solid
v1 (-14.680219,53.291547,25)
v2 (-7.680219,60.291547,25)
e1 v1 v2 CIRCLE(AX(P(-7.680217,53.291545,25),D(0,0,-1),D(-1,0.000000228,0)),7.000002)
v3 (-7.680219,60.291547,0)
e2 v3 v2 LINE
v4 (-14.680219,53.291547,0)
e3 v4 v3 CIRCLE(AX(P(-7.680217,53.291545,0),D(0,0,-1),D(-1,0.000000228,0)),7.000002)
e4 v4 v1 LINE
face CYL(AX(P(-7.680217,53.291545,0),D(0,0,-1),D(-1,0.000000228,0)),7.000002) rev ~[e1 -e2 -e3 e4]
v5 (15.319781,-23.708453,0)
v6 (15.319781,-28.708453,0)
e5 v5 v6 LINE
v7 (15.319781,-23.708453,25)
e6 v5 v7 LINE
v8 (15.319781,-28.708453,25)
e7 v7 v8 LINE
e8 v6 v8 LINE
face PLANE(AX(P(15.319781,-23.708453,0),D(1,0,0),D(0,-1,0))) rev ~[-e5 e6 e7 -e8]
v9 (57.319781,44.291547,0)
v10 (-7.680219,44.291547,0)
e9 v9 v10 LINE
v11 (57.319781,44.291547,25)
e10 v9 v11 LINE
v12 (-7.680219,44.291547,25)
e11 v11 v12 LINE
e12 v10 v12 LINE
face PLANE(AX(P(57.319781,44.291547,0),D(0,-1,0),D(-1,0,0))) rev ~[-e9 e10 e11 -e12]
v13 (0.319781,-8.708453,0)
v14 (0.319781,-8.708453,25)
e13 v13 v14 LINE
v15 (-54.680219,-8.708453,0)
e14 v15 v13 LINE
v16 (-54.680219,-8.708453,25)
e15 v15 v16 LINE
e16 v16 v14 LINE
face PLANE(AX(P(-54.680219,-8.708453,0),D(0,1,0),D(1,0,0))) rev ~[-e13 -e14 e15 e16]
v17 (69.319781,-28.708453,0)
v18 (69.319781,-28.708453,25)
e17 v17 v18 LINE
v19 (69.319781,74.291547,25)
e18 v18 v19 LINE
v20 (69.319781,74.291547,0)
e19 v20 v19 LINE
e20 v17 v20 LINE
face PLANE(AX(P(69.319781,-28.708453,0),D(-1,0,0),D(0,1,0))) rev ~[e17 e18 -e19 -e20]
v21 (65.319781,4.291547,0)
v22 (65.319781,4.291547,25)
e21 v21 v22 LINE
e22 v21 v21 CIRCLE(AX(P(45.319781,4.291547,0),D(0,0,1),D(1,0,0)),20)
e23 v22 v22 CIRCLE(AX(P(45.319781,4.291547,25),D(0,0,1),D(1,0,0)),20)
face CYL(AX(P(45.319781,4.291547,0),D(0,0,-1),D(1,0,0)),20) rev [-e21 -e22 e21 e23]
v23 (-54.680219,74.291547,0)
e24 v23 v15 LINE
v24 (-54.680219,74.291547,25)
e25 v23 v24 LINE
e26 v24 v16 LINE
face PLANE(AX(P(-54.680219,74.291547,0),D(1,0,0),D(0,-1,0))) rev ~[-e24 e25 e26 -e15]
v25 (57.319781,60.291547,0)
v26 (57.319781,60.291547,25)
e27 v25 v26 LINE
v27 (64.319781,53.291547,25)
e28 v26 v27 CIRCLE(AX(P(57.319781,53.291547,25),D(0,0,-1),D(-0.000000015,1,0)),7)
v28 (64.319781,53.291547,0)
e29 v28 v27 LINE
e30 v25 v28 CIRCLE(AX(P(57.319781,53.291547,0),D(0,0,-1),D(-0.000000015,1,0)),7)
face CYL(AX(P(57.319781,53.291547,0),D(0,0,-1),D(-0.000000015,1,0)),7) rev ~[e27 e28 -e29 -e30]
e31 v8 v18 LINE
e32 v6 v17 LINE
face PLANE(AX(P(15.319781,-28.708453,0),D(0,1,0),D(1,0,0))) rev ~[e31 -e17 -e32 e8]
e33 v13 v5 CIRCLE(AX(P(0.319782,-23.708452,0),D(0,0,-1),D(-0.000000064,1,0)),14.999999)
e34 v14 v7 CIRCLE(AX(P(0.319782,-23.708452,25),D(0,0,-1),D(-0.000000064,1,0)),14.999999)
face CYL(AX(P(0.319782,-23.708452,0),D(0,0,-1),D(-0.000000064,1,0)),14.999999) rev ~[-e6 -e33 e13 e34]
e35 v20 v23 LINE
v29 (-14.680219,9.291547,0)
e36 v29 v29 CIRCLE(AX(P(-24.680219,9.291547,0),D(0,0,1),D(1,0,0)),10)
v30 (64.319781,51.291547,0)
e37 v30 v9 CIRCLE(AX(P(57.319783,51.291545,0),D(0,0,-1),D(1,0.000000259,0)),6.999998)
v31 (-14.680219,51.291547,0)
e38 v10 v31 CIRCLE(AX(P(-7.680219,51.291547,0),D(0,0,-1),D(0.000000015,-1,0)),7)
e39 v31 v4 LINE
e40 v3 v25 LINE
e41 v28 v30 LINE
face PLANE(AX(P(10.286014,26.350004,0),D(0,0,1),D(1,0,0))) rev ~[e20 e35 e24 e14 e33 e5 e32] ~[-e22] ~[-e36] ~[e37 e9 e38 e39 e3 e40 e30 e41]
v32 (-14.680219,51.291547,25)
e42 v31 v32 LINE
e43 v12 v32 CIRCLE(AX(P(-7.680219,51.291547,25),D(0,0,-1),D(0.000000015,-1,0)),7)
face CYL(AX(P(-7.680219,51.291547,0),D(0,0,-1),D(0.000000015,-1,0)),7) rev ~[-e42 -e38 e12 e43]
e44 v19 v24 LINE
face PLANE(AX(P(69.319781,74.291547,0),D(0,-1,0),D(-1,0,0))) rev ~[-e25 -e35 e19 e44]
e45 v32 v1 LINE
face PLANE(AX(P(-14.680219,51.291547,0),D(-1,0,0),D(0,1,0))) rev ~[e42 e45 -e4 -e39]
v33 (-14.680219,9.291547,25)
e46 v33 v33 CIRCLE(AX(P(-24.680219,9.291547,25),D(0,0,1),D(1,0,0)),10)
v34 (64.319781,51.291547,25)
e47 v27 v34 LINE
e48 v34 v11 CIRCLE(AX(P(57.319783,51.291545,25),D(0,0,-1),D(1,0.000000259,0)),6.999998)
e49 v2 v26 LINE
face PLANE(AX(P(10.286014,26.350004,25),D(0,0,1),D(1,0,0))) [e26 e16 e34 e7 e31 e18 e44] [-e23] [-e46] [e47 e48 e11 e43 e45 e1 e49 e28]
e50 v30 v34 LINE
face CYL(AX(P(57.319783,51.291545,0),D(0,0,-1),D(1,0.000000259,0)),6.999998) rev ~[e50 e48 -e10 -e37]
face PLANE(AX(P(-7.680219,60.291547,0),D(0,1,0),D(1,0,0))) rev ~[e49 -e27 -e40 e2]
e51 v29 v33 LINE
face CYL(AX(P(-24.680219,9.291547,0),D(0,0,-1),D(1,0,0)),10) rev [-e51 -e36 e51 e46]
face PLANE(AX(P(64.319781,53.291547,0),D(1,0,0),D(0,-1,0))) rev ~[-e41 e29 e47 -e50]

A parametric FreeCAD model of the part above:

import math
import FreeCAD as App
import Part
import Sketcher
Q = App.Units.Quantity

doc = App.newDocument("Part")
body = doc.addObject("PartDesign::Body", "Body")

# Sketch on XY plane
sketch1 = doc.addObject("Sketcher::SketchObject", "Sketch")
body.addObject(sketch1)
sketch1.AttachmentSupport = (doc.XY_Plane, [""])
sketch1.MapMode = "FlatFace"
sketch1.addGeometry([
    Part.LineSegment(App.Vector(69.3, 74.3, 0), App.Vector(-54.7, 74.3, 0)),  # 0
    Part.LineSegment(App.Vector(-54.7, 74.3, 0), App.Vector(-54.7, -8.7, 0)),  # 1
    Part.LineSegment(App.Vector(-54.7, -8.7, 0), App.Vector(0.3, -8.7, 0)),  # 2
    Part.ArcOfCircle(Part.Circle(App.Vector(0.3, -23.7, 0), App.Vector(0, 0, 1), 15), math.radians(0), math.radians(90)),  # 3
    Part.LineSegment(App.Vector(15.3, -23.7, 0), App.Vector(15.3, -28.7, 0)),  # 4
    Part.LineSegment(App.Vector(15.3, -28.7, 0), App.Vector(69.3, -28.7, 0)),  # 5
    Part.LineSegment(App.Vector(69.3, -28.7, 0), App.Vector(69.3, 74.3, 0)),  # 6
    Part.Circle(App.Vector(-24.7, 9.3, 0), App.Vector(0, 0, 1), 10),  # 7
    Part.Circle(App.Vector(45.3, 4.3, 0), App.Vector(0, 0, 1), 20),  # 8
    Part.LineSegment(App.Vector(-14.7, 51.3, 0), App.Vector(-14.7, 53.3, 0)),  # 9
    Part.ArcOfCircle(Part.Circle(App.Vector(-7.7, 53.3, 0), App.Vector(0, 0, 1), 7), math.radians(90), math.radians(180)),  # 10
    Part.LineSegment(App.Vector(-7.7, 60.3, 0), App.Vector(57.3, 60.3, 0)),  # 11
    Part.ArcOfCircle(Part.Circle(App.Vector(57.3, 53.3, 0), App.Vector(0, 0, 1), 7), math.radians(0), math.radians(90)),  # 12
    Part.LineSegment(App.Vector(64.3, 53.3, 0), App.Vector(64.3, 51.3, 0)),  # 13
    Part.ArcOfCircle(Part.Circle(App.Vector(57.3, 51.3, 0), App.Vector(0, 0, 1), 7), math.radians(-90), math.radians(0)),  # 14
    Part.LineSegment(App.Vector(57.3, 44.3, 0), App.Vector(-7.7, 44.3, 0)),  # 15
    Part.ArcOfCircle(Part.Circle(App.Vector(-7.7, 51.3, 0), App.Vector(0, 0, 1), 7), math.radians(180), math.radians(270)),  # 16
], False)
sketch1.addConstraint([
    Sketcher.Constraint("Coincident", 0, 2, 1, 1),
    Sketcher.Constraint("Coincident", 1, 2, 2, 1),
    Sketcher.Constraint("Tangent", 2, 2, 3, 2),
    Sketcher.Constraint("Tangent", 3, 1, 4, 1),
    Sketcher.Constraint("Coincident", 4, 2, 5, 1),
    Sketcher.Constraint("Coincident", 5, 2, 6, 1),
    Sketcher.Constraint("Coincident", 6, 2, 0, 1),
    Sketcher.Constraint("Tangent", 9, 2, 10, 2),
    Sketcher.Constraint("Tangent", 10, 1, 11, 1),
    Sketcher.Constraint("Tangent", 11, 2, 12, 2),
    Sketcher.Constraint("Tangent", 12, 1, 13, 1),
    Sketcher.Constraint("Tangent", 13, 2, 14, 2),
    Sketcher.Constraint("Tangent", 14, 1, 15, 1),
    Sketcher.Constraint("Tangent", 15, 2, 16, 2),
    Sketcher.Constraint("Tangent", 16, 1, 9, 1),
    Sketcher.Constraint("Horizontal", 0),
    Sketcher.Constraint("Vertical", 1),
    Sketcher.Constraint("Horizontal", 2),
    Sketcher.Constraint("Vertical", 4),
    Sketcher.Constraint("Horizontal", 5),
    Sketcher.Constraint("Vertical", 6),
    Sketcher.Constraint("Vertical", 9),
    Sketcher.Constraint("Horizontal", 11),
    Sketcher.Constraint("Vertical", 13),
    Sketcher.Constraint("Horizontal", 15),
    Sketcher.Constraint("Equal", 10, 12),
    Sketcher.Constraint("Equal", 12, 14),
    Sketcher.Constraint("Equal", 14, 16),
    Sketcher.Constraint("Diameter", 7, Q("20 mm")),
    Sketcher.Constraint("Diameter", 8, Q("40 mm")),
    Sketcher.Constraint("Radius", 3, Q("14.999999 mm")),
    Sketcher.Constraint("Radius", 10, Q("7.000002 mm")),
    Sketcher.Constraint("DistanceX", 0, 2, 0, 1, Q("124 mm")),
    Sketcher.Constraint("DistanceX", 2, 1, 2, 2, Q("55 mm")),
    Sketcher.Constraint("DistanceX", 11, 1, 11, 2, Q("65 mm")),
    Sketcher.Constraint("DistanceY", 1, 2, 1, 1, Q("83 mm")),
    Sketcher.Constraint("DistanceY", 4, 2, 4, 1, Q("5 mm")),
    Sketcher.Constraint("DistanceY", 9, 1, 9, 2, Q("2 mm")),
    Sketcher.Constraint("DistanceX", 7, 3, 3, 3, Q("25.000001 mm")),
    Sketcher.Constraint("DistanceY", 3, 3, 7, 3, Q("32.999999 mm")),
    Sketcher.Constraint("DistanceX", 3, 3, 8, 3, Q("44.999999 mm")),
    Sketcher.Constraint("DistanceY", 3, 3, 8, 3, Q("27.999999 mm")),
    Sketcher.Constraint("DistanceX", 7, 3, 10, 3, Q("17.000002 mm")),
    Sketcher.Constraint("DistanceY", 7, 3, 10, 3, Q("43.999998 mm")),
    Sketcher.Constraint("DistanceX", -1, 1, 3, 3, Q("0.319782 mm")),
    Sketcher.Constraint("DistanceY", 3, 3, -1, 1, Q("23.708452 mm")),
])
pad1 = doc.addObject("PartDesign::Pad", "Pad")
body.addObject(pad1)
pad1.Profile = sketch1
pad1.Length = 25

# Sketch on XY plane
sketch2 = doc.addObject("Sketcher::SketchObject", "Sketch001")
body.addObject(sketch2)
sketch2.AttachmentSupport = (doc.XY_Plane, [""])
sketch2.MapMode = "FlatFace"
sketch2.addGeometry([
    Part.LineSegment(App.Vector(69.3, 74.3, 0), App.Vector(-54.7, 74.3, 0)),  # 0
    Part.LineSegment(App.Vector(-54.7, 74.3, 0), App.Vector(-54.7, -8.7, 0)),  # 1
    Part.LineSegment(App.Vector(-54.7, -8.7, 0), App.Vector(0.3, -8.7, 0)),  # 2
    Part.ArcOfCircle(Part.Circle(App.Vector(0.3, -23.7, 0), App.Vector(0, 0, 1), 15), math.radians(0), math.radians(90)),  # 3
    Part.LineSegment(App.Vector(15.3, -23.7, 0), App.Vector(15.3, -28.7, 0)),  # 4
    Part.LineSegment(App.Vector(15.3, -28.7, 0), App.Vector(69.3, -28.7, 0)),  # 5
    Part.LineSegment(App.Vector(69.3, -28.7, 0), App.Vector(69.3, 74.3, 0)),  # 6
    Part.Circle(App.Vector(-24.7, 9.3, 0), App.Vector(0, 0, 1), 10),  # 7
    Part.Circle(App.Vector(45.3, 4.3, 0), App.Vector(0, 0, 1), 20),  # 8
    Part.LineSegment(App.Vector(-14.7, 51.3, 0), App.Vector(-14.7, 53.3, 0)),  # 9
    Part.ArcOfCircle(Part.Circle(App.Vector(-7.7, 53.3, 0), App.Vector(0, 0, 1), 7), math.radians(90), math.radians(180)),  # 10
    Part.LineSegment(App.Vector(-7.7, 60.3, 0), App.Vector(57.3, 60.3, 0)),  # 11
    Part.ArcOfCircle(Part.Circle(App.Vector(57.3, 53.3, 0), App.Vector(0, 0, 1), 7), math.radians(0), math.radians(90)),  # 12
    Part.LineSegment(App.Vector(64.3, 53.3, 0), App.Vector(64.3, 51.3, 0)),  # 13
    Part.ArcOfCircle(Part.Circle(App.Vector(57.3, 51.3, 0), App.Vector(0, 0, 1), 7), math.radians(-90), math.radians(0)),  # 14
    Part.LineSegment(App.Vector(57.3, 44.3, 0), App.Vector(-7.7, 44.3, 0)),  # 15
    Part.ArcOfCircle(Part.Circle(App.Vector(-7.7, 51.3, 0), App.Vector(0, 0, 1), 7), math.radians(180), math.radians(270)),  # 16
], False)
sketch2.addConstraint([
    Sketcher.Constraint("Coincident", 0, 2, 1, 1),
    Sketcher.Constraint("Coincident", 1, 2, 2, 1),
    Sketcher.Constraint("Tangent", 2, 2, 3, 2),
    Sketcher.Constraint("Tangent", 3, 1, 4, 1),
    Sketcher.Constraint("Coincident", 4, 2, 5, 1),
    Sketcher.Constraint("Coincident", 5, 2, 6, 1),
    Sketcher.Constraint("Coincident", 6, 2, 0, 1),
    Sketcher.Constraint("Tangent", 9, 2, 10, 2),
    Sketcher.Constraint("Tangent", 10, 1, 11, 1),
    Sketcher.Constraint("Tangent", 11, 2, 12, 2),
    Sketcher.Constraint("Tangent", 12, 1, 13, 1),
    Sketcher.Constraint("Tangent", 13, 2, 14, 2),
    Sketcher.Constraint("Tangent", 14, 1, 15, 1),
    Sketcher.Constraint("Tangent", 15, 2, 16, 2),
    Sketcher.Constraint("Tangent", 16, 1, 9, 1),
    Sketcher.Constraint("Horizontal", 0),
    Sketcher.Constraint("Vertical", 1),
    Sketcher.Constraint("Horizontal", 2),
    Sketcher.Constraint("Vertical", 4),
    Sketcher.Constraint("Horizontal", 5),
    Sketcher.Constraint("Vertical", 6),
    Sketcher.Constraint("Vertical", 9),
    Sketcher.Constraint("Horizontal", 11),
    Sketcher.Constraint("Vertical", 13),
    Sketcher.Constraint("Horizontal", 15),
    Sketcher.Constraint("Equal", 10, 12),
    Sketcher.Constraint("Equal", 12, 14),
    Sketcher.Constraint("Equal", 14, 16),
    Sketcher.Constraint("Diameter", 7, Q("20 mm")),
    Sketcher.Constraint("Diameter", 8, Q("40 mm")),
    Sketcher.Constraint("Radius", 3, Q("14.999999 mm")),
    Sketcher.Constraint("Radius", 10, Q("7.000002 mm")),
    Sketcher.Constraint("DistanceX", 0, 2, 0, 1, Q("124 mm")),
    Sketcher.Constraint("DistanceX", 2, 1, 2, 2, Q("55 mm")),
    Sketcher.Constraint("DistanceX", 11, 1, 11, 2, Q("65 mm")),
    Sketcher.Constraint("DistanceY", 1, 2, 1, 1, Q("83 mm")),
    Sketcher.Constraint("DistanceY", 4, 2, 4, 1, Q("5 mm")),
    Sketcher.Constraint("DistanceY", 9, 1, 9, 2, Q("2 mm")),
    Sketcher.Constraint("DistanceX", 7, 3, 3, 3, Q("25.000001 mm")),
    Sketcher.Constraint("DistanceY", 3, 3, 7, 3, Q("32.999999 mm")),
    Sketcher.Constraint("DistanceX", 3, 3, 8, 3, Q("44.999999 mm")),
    Sketcher.Constraint("DistanceY", 3, 3, 8, 3, Q("27.999999 mm")),
    Sketcher.Constraint("DistanceX", 7, 3, 10, 3, Q("17.000002 mm")),
    Sketcher.Constraint("DistanceY", 7, 3, 10, 3, Q("43.999998 mm")),
    Sketcher.Constraint("DistanceX", -1, 1, 3, 3, Q("0.319782 mm")),
    Sketcher.Constraint("DistanceY", 3, 3, -1, 1, Q("23.708452 mm")),
])
pad2 = doc.addObject("PartDesign::Pad", "Pad001")
body.addObject(pad2)
pad2.Profile = sketch2
pad2.Length = 25

# Sketch on XY plane
sketch3 = doc.addObject("Sketcher::SketchObject", "Sketch002")
body.addObject(sketch3)
sketch3.AttachmentSupport = (doc.XY_Plane, [""])
sketch3.MapMode = "FlatFace"
sketch3.addGeometry([
    Part.LineSegment(App.Vector(69.3, 74.3, 0), App.Vector(-54.7, 74.3, 0)),  # 0
    Part.LineSegment(App.Vector(-54.7, 74.3, 0), App.Vector(-54.7, -8.7, 0)),  # 1
    Part.LineSegment(App.Vector(-54.7, -8.7, 0), App.Vector(0.3, -8.7, 0)),  # 2
    Part.ArcOfCircle(Part.Circle(App.Vector(0.3, -23.7, 0), App.Vector(0, 0, 1), 15), math.radians(0), math.radians(90)),  # 3
    Part.LineSegment(App.Vector(15.3, -23.7, 0), App.Vector(15.3, -28.7, 0)),  # 4
    Part.LineSegment(App.Vector(15.3, -28.7, 0), App.Vector(69.3, -28.7, 0)),  # 5
    Part.LineSegment(App.Vector(69.3, -28.7, 0), App.Vector(69.3, 74.3, 0)),  # 6
    Part.Circle(App.Vector(-24.7, 9.3, 0), App.Vector(0, 0, 1), 10),  # 7
    Part.Circle(App.Vector(45.3, 4.3, 0), App.Vector(0, 0, 1), 20),  # 8
    Part.LineSegment(App.Vector(-14.7, 51.3, 0), App.Vector(-14.7, 53.3, 0)),  # 9
    Part.ArcOfCircle(Part.Circle(App.Vector(-7.7, 53.3, 0), App.Vector(0, 0, 1), 7), math.radians(90), math.radians(180)),  # 10
    Part.LineSegment(App.Vector(-7.7, 60.3, 0), App.Vector(57.3, 60.3, 0)),  # 11
    Part.ArcOfCircle(Part.Circle(App.Vector(57.3, 53.3, 0), App.Vector(0, 0, 1), 7), math.radians(0), math.radians(90)),  # 12
    Part.LineSegment(App.Vector(64.3, 53.3, 0), App.Vector(64.3, 51.3, 0)),  # 13
    Part.ArcOfCircle(Part.Circle(App.Vector(57.3, 51.3, 0), App.Vector(0, 0, 1), 7), math.radians(-90), math.radians(0)),  # 14
    Part.LineSegment(App.Vector(57.3, 44.3, 0), App.Vector(-7.7, 44.3, 0)),  # 15
    Part.ArcOfCircle(Part.Circle(App.Vector(-7.7, 51.3, 0), App.Vector(0, 0, 1), 7), math.radians(180), math.radians(270)),  # 16
], False)
sketch3.addConstraint([
    Sketcher.Constraint("Coincident", 0, 2, 1, 1),
    Sketcher.Constraint("Coincident", 1, 2, 2, 1),
    Sketcher.Constraint("Tangent", 2, 2, 3, 2),
    Sketcher.Constraint("Tangent", 3, 1, 4, 1),
    Sketcher.Constraint("Coincident", 4, 2, 5, 1),
    Sketcher.Constraint("Coincident", 5, 2, 6, 1),
    Sketcher.Constraint("Coincident", 6, 2, 0, 1),
    Sketcher.Constraint("Tangent", 9, 2, 10, 2),
    Sketcher.Constraint("Tangent", 10, 1, 11, 1),
    Sketcher.Constraint("Tangent", 11, 2, 12, 2),
    Sketcher.Constraint("Tangent", 12, 1, 13, 1),
    Sketcher.Constraint("Tangent", 13, 2, 14, 2),
    Sketcher.Constraint("Tangent", 14, 1, 15, 1),
    Sketcher.Constraint("Tangent", 15, 2, 16, 2),
    Sketcher.Constraint("Tangent", 16, 1, 9, 1),
    Sketcher.Constraint("Horizontal", 0),
    Sketcher.Constraint("Vertical", 1),
    Sketcher.Constraint("Horizontal", 2),
    Sketcher.Constraint("Vertical", 4),
    Sketcher.Constraint("Horizontal", 5),
    Sketcher.Constraint("Vertical", 6),
    Sketcher.Constraint("Vertical", 9),
    Sketcher.Constraint("Horizontal", 11),
    Sketcher.Constraint("Vertical", 13),
    Sketcher.Constraint("Horizontal", 15),
    Sketcher.Constraint("Equal", 10, 12),
    Sketcher.Constraint("Equal", 12, 14),
    Sketcher.Constraint("Equal", 14, 16),
    Sketcher.Constraint("Diameter", 7, Q("20 mm")),
    Sketcher.Constraint("Diameter", 8, Q("40 mm")),
    Sketcher.Constraint("Radius", 3, Q("14.999999 mm")),
    Sketcher.Constraint("Radius", 10, Q("7.000002 mm")),
    Sketcher.Constraint("DistanceX", 0, 2, 0, 1, Q("124 mm")),
    Sketcher.Constraint("DistanceX", 2, 1, 2, 2, Q("55 mm")),
    Sketcher.Constraint("DistanceX", 11, 1, 11, 2, Q("65 mm")),
    Sketcher.Constraint("DistanceY", 1, 2, 1, 1, Q("83 mm")),
    Sketcher.Constraint("DistanceY", 4, 2, 4, 1, Q("5 mm")),
    Sketcher.Constraint("DistanceY", 9, 1, 9, 2, Q("2 mm")),
    Sketcher.Constraint("DistanceX", 7, 3, 3, 3, Q("25.000001 mm")),
    Sketcher.Constraint("DistanceY", 3, 3, 7, 3, Q("32.999999 mm")),
    Sketcher.Constraint("DistanceX", 3, 3, 8, 3, Q("44.999999 mm")),
    Sketcher.Constraint("DistanceY", 3, 3, 8, 3, Q("27.999999 mm")),
    Sketcher.Constraint("DistanceX", 7, 3, 10, 3, Q("17.000002 mm")),
    Sketcher.Constraint("DistanceY", 7, 3, 10, 3, Q("43.999998 mm")),
    Sketcher.Constraint("DistanceX", -1, 1, 3, 3, Q("0.319782 mm")),
    Sketcher.Constraint("DistanceY", 3, 3, -1, 1, Q("23.708452 mm")),
])
pad3 = doc.addObject("PartDesign::Pad", "Pad002")
body.addObject(pad3)
pad3.Profile = sketch3
pad3.Length = 25

# Sketch on XY plane
sketch4 = doc.addObject("Sketcher::SketchObject", "Sketch003")
body.addObject(sketch4)
sketch4.AttachmentSupport = (doc.XY_Plane, [""])
sketch4.MapMode = "FlatFace"
sketch4.addGeometry([
    Part.LineSegment(App.Vector(69.3, 74.3, 0), App.Vector(-54.7, 74.3, 0)),  # 0
    Part.LineSegment(App.Vector(-54.7, 74.3, 0), App.Vector(-54.7, -8.7, 0)),  # 1
    Part.LineSegment(App.Vector(-54.7, -8.7, 0), App.Vector(0.3, -8.7, 0)),  # 2
    Part.ArcOfCircle(Part.Circle(App.Vector(0.3, -23.7, 0), App.Vector(0, 0, 1), 15), math.radians(0), math.radians(90)),  # 3
    Part.LineSegment(App.Vector(15.3, -23.7, 0), App.Vector(15.3, -28.7, 0)),  # 4
    Part.LineSegment(App.Vector(15.3, -28.7, 0), App.Vector(69.3, -28.7, 0)),  # 5
    Part.LineSegment(App.Vector(69.3, -28.7, 0), App.Vector(69.3, 74.3, 0)),  # 6
    Part.Circle(App.Vector(-24.7, 9.3, 0), App.Vector(0, 0, 1), 10),  # 7
    Part.Circle(App.Vector(45.3, 4.3, 0), App.Vector(0, 0, 1), 20),  # 8
    Part.LineSegment(App.Vector(-14.7, 51.3, 0), App.Vector(-14.7, 53.3, 0)),  # 9
    Part.ArcOfCircle(Part.Circle(App.Vector(-7.7, 53.3, 0), App.Vector(0, 0, 1), 7), math.radians(90), math.radians(180)),  # 10
    Part.LineSegment(App.Vector(-7.7, 60.3, 0), App.Vector(57.3, 60.3, 0)),  # 11
    Part.ArcOfCircle(Part.Circle(App.Vector(57.3, 53.3, 0), App.Vector(0, 0, 1), 7), math.radians(0), math.radians(90)),  # 12
    Part.LineSegment(App.Vector(64.3, 53.3, 0), App.Vector(64.3, 51.3, 0)),  # 13
    Part.ArcOfCircle(Part.Circle(App.Vector(57.3, 51.3, 0), App.Vector(0, 0, 1), 7), math.radians(-90), math.radians(0)),  # 14
    Part.LineSegment(App.Vector(57.3, 44.3, 0), App.Vector(-7.7, 44.3, 0)),  # 15
    Part.ArcOfCircle(Part.Circle(App.Vector(-7.7, 51.3, 0), App.Vector(0, 0, 1), 7), math.radians(180), math.radians(270)),  # 16
], False)
sketch4.addConstraint([
    Sketcher.Constraint("Coincident", 0, 2, 1, 1),
    Sketcher.Constraint("Coincident", 1, 2, 2, 1),
    Sketcher.Constraint("Tangent", 2, 2, 3, 2),
    Sketcher.Constraint("Tangent", 3, 1, 4, 1),
    Sketcher.Constraint("Coincident", 4, 2, 5, 1),
    Sketcher.Constraint("Coincident", 5, 2, 6, 1),
    Sketcher.Constraint("Coincident", 6, 2, 0, 1),
    Sketcher.Constraint("Tangent", 9, 2, 10, 2),
    Sketcher.Constraint("Tangent", 10, 1, 11, 1),
    Sketcher.Constraint("Tangent", 11, 2, 12, 2),
    Sketcher.Constraint("Tangent", 12, 1, 13, 1),
    Sketcher.Constraint("Tangent", 13, 2, 14, 2),
    Sketcher.Constraint("Tangent", 14, 1, 15, 1),
    Sketcher.Constraint("Tangent", 15, 2, 16, 2),
    Sketcher.Constraint("Tangent", 16, 1, 9, 1),
    Sketcher.Constraint("Horizontal", 0),
    Sketcher.Constraint("Vertical", 1),
    Sketcher.Constraint("Horizontal", 2),
    Sketcher.Constraint("Vertical", 4),
    Sketcher.Constraint("Horizontal", 5),
    Sketcher.Constraint("Vertical", 6),
    Sketcher.Constraint("Vertical", 9),
    Sketcher.Constraint("Horizontal", 11),
    Sketcher.Constraint("Vertical", 13),
    Sketcher.Constraint("Horizontal", 15),
    Sketcher.Constraint("Equal", 10, 12),
    Sketcher.Constraint("Equal", 12, 14),
    Sketcher.Constraint("Equal", 14, 16),
    Sketcher.Constraint("Diameter", 7, Q("20 mm")),
    Sketcher.Constraint("Diameter", 8, Q("40 mm")),
    Sketcher.Constraint("Radius", 3, Q("14.999999 mm")),
    Sketcher.Constraint("Radius", 10, Q("7.000002 mm")),
    Sketcher.Constraint("DistanceX", 0, 2, 0, 1, Q("124 mm")),
    Sketcher.Constraint("DistanceX", 2, 1, 2, 2, Q("55 mm")),
    Sketcher.Constraint("DistanceX", 11, 1, 11, 2, Q("65 mm")),
    Sketcher.Constraint("DistanceY", 1, 2, 1, 1, Q("83 mm")),
    Sketcher.Constraint("DistanceY", 4, 2, 4, 1, Q("5 mm")),
    Sketcher.Constraint("DistanceY", 9, 1, 9, 2, Q("2 mm")),
    Sketcher.Constraint("DistanceX", 7, 3, 3, 3, Q("25.000001 mm")),
    Sketcher.Constraint("DistanceY", 3, 3, 7, 3, Q("32.999999 mm")),
    Sketcher.Constraint("DistanceX", 3, 3, 8, 3, Q("44.999999 mm")),
    Sketcher.Constraint("DistanceY", 3, 3, 8, 3, Q("27.999999 mm")),
    Sketcher.Constraint("DistanceX", 7, 3, 10, 3, Q("17.000002 mm")),
    Sketcher.Constraint("DistanceY", 7, 3, 10, 3, Q("43.999998 mm")),
    Sketcher.Constraint("DistanceX", -1, 1, 3, 3, Q("0.319782 mm")),
    Sketcher.Constraint("DistanceY", 3, 3, -1, 1, Q("23.708452 mm")),
])
pad4 = doc.addObject("PartDesign::Pad", "Pad003")
body.addObject(pad4)
pad4.Profile = sketch4
pad4.Length = 25

# Sketch on XY plane
sketch5 = doc.addObject("Sketcher::SketchObject", "Sketch004")
body.addObject(sketch5)
sketch5.AttachmentSupport = (doc.XY_Plane, [""])
sketch5.MapMode = "FlatFace"
sketch5.addGeometry([
    Part.LineSegment(App.Vector(69.3, 74.3, 0), App.Vector(-54.7, 74.3, 0)),  # 0
    Part.LineSegment(App.Vector(-54.7, 74.3, 0), App.Vector(-54.7, -8.7, 0)),  # 1
    Part.LineSegment(App.Vector(-54.7, -8.7, 0), App.Vector(0.3, -8.7, 0)),  # 2
    Part.ArcOfCircle(Part.Circle(App.Vector(0.3, -23.7, 0), App.Vector(0, 0, 1), 15), math.radians(0), math.radians(90)),  # 3
    Part.LineSegment(App.Vector(15.3, -23.7, 0), App.Vector(15.3, -28.7, 0)),  # 4
    Part.LineSegment(App.Vector(15.3, -28.7, 0), App.Vector(69.3, -28.7, 0)),  # 5
    Part.LineSegment(App.Vector(69.3, -28.7, 0), App.Vector(69.3, 74.3, 0)),  # 6
    Part.Circle(App.Vector(-24.7, 9.3, 0), App.Vector(0, 0, 1), 10),  # 7
    Part.Circle(App.Vector(45.3, 4.3, 0), App.Vector(0, 0, 1), 20),  # 8
    Part.LineSegment(App.Vector(-14.7, 51.3, 0), App.Vector(-14.7, 53.3, 0)),  # 9
    Part.ArcOfCircle(Part.Circle(App.Vector(-7.7, 53.3, 0), App.Vector(0, 0, 1), 7), math.radians(90), math.radians(180)),  # 10
    Part.LineSegment(App.Vector(-7.7, 60.3, 0), App.Vector(57.3, 60.3, 0)),  # 11
    Part.ArcOfCircle(Part.Circle(App.Vector(57.3, 53.3, 0), App.Vector(0, 0, 1), 7), math.radians(0), math.radians(90)),  # 12
    Part.LineSegment(App.Vector(64.3, 53.3, 0), App.Vector(64.3, 51.3, 0)),  # 13
    Part.ArcOfCircle(Part.Circle(App.Vector(57.3, 51.3, 0), App.Vector(0, 0, 1), 7), math.radians(-90), math.radians(0)),  # 14
    Part.LineSegment(App.Vector(57.3, 44.3, 0), App.Vector(-7.7, 44.3, 0)),  # 15
    Part.ArcOfCircle(Part.Circle(App.Vector(-7.7, 51.3, 0), App.Vector(0, 0, 1), 7), math.radians(180), math.radians(270)),  # 16
], False)
sketch5.addConstraint([
    Sketcher.Constraint("Coincident", 0, 2, 1, 1),
    Sketcher.Constraint("Coincident", 1, 2, 2, 1),
    Sketcher.Constraint("Tangent", 2, 2, 3, 2),
    Sketcher.Constraint("Tangent", 3, 1, 4, 1),
    Sketcher.Constraint("Coincident", 4, 2, 5, 1),
    Sketcher.Constraint("Coincident", 5, 2, 6, 1),
    Sketcher.Constraint("Coincident", 6, 2, 0, 1),
    Sketcher.Constraint("Tangent", 9, 2, 10, 2),
    Sketcher.Constraint("Tangent", 10, 1, 11, 1),
    Sketcher.Constraint("Tangent", 11, 2, 12, 2),
    Sketcher.Constraint("Tangent", 12, 1, 13, 1),
    Sketcher.Constraint("Tangent", 13, 2, 14, 2),
    Sketcher.Constraint("Tangent", 14, 1, 15, 1),
    Sketcher.Constraint("Tangent", 15, 2, 16, 2),
    Sketcher.Constraint("Tangent", 16, 1, 9, 1),
    Sketcher.Constraint("Horizontal", 0),
    Sketcher.Constraint("Vertical", 1),
    Sketcher.Constraint("Horizontal", 2),
    Sketcher.Constraint("Vertical", 4),
    Sketcher.Constraint("Horizontal", 5),
    Sketcher.Constraint("Vertical", 6),
    Sketcher.Constraint("Vertical", 9),
    Sketcher.Constraint("Horizontal", 11),
    Sketcher.Constraint("Vertical", 13),
    Sketcher.Constraint("Horizontal", 15),
    Sketcher.Constraint("Equal", 10, 12),
    Sketcher.Constraint("Equal", 12, 14),
    Sketcher.Constraint("Equal", 14, 16),
    Sketcher.Constraint("Diameter", 7, Q("20 mm")),
    Sketcher.Constraint("Diameter", 8, Q("40 mm")),
    Sketcher.Constraint("Radius", 3, Q("14.999999 mm")),
    Sketcher.Constraint("Radius", 10, Q("7.000002 mm")),
    Sketcher.Constraint("DistanceX", 0, 2, 0, 1, Q("124 mm")),
    Sketcher.Constraint("DistanceX", 2, 1, 2, 2, Q("55 mm")),
    Sketcher.Constraint("DistanceX", 11, 1, 11, 2, Q("65 mm")),
    Sketcher.Constraint("DistanceY", 1, 2, 1, 1, Q("83 mm")),
    Sketcher.Constraint("DistanceY", 4, 2, 4, 1, Q("5 mm")),
    Sketcher.Constraint("DistanceY", 9, 1, 9, 2, Q("2 mm")),
    Sketcher.Constraint("DistanceX", 7, 3, 3, 3, Q("25.000001 mm")),
    Sketcher.Constraint("DistanceY", 3, 3, 7, 3, Q("32.999999 mm")),
    Sketcher.Constraint("DistanceX", 3, 3, 8, 3, Q("44.999999 mm")),
    Sketcher.Constraint("DistanceY", 3, 3, 8, 3, Q("27.999999 mm")),
    Sketcher.Constraint("DistanceX", 7, 3, 10, 3, Q("17.000002 mm")),
    Sketcher.Constraint("DistanceY", 7, 3, 10, 3, Q("43.999998 mm")),
    Sketcher.Constraint("DistanceX", -1, 1, 3, 3, Q("0.319782 mm")),
    Sketcher.Constraint("DistanceY", 3, 3, -1, 1, Q("23.708452 mm")),
])
pad5 = doc.addObject("PartDesign::Pad", "Pad004")
body.addObject(pad5)
pad5.Profile = sketch5
pad5.Length = 25

doc.recompute()
